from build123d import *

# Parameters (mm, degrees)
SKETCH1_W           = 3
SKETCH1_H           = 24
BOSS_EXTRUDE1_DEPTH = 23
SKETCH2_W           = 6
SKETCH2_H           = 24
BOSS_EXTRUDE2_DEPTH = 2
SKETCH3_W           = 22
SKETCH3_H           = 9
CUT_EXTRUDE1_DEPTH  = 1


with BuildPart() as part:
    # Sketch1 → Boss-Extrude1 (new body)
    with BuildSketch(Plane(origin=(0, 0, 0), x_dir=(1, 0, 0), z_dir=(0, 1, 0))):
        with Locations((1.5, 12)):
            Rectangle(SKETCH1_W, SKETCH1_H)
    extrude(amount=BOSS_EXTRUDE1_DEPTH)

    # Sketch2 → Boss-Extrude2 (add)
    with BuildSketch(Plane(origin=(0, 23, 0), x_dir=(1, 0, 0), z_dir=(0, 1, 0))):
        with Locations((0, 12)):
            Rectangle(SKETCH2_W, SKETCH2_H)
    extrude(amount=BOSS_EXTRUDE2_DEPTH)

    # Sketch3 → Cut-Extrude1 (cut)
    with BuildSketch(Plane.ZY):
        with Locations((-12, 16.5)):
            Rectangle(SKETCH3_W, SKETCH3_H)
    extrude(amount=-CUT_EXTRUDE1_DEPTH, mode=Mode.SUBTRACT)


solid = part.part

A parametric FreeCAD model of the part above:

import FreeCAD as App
import Part
import Sketcher
from FreeCAD import Vector

doc = App.newDocument("Part")
body = doc.addObject("PartDesign::Body", "Body")

# Sketch on XZ plane
sketch1 = body.newObject("Sketcher::SketchObject", "Sketch")
sketch1.AttachmentSupport = (doc.getObject("XZ_Plane"), [""])
sketch1.MapMode = "FlatFace"
sketch1.addGeometry([
    Part.LineSegment(Vector(0, -24, 0), Vector(0, 0, 0)),
    Part.LineSegment(Vector(0, 0, 0), Vector(3, 0, 0)),
    Part.LineSegment(Vector(3, 0, 0), Vector(3, -24, 0)),
    Part.LineSegment(Vector(3, -24, 0), Vector(0, -24, 0)),
], False)
sketch1.addConstraint([
    Sketcher.Constraint("Coincident", 0, 2, 1, 1),
    Sketcher.Constraint("Coincident", 1, 2, 2, 1),
    Sketcher.Constraint("Coincident", 2, 2, 3, 1),
    Sketcher.Constraint("Coincident", 3, 2, 0, 1),
    Sketcher.Constraint("Vertical", 0),
    Sketcher.Constraint("Horizontal", 1),
    Sketcher.Constraint("Vertical", 2),
    Sketcher.Constraint("Horizontal", 3),
    Sketcher.Constraint("Coincident", 0, 2, -1, 1),
    Sketcher.Constraint("DistanceX", 1, 1, 1, 2, 3.0),
    Sketcher.Constraint("DistanceY", 0, 1, 0, 2, 24.0),
])
pad1 = body.newObject("PartDesign::Pad", "Pad")
pad1.Profile = sketch1
pad1.Length = 23
pad1.Reversed = True

# Sketch on XZ plane
sketch2 = body.newObject("Sketcher::SketchObject", "Sketch001")
sketch2.AttachmentSupport = (doc.getObject("XZ_Plane"), [""])
sketch2.MapMode = "FlatFace"
sketch2.AttachmentOffset = App.Placement(Vector(0, 0, -23), App.Rotation())
sketch2.addGeometry([
    Part.LineSegment(Vector(-3, -24, 0), Vector(-3, 0, 0)),
    Part.LineSegment(Vector(-3, 0, 0), Vector(3, 0, 0)),
    Part.LineSegment(Vector(3, 0, 0), Vector(3, -24, 0)),
    Part.LineSegment(Vector(3, -24, 0), Vector(-3, -24, 0)),
], False)
sketch2.addConstraint([
    Sketcher.Constraint("Coincident", 0, 2, 1, 1),
    Sketcher.Constraint("Coincident", 1, 2, 2, 1),
    Sketcher.Constraint("Coincident", 2, 2, 3, 1),
    Sketcher.Constraint("Coincident", 3, 2, 0, 1),
    Sketcher.Constraint("Vertical", 0),
    Sketcher.Constraint("Horizontal", 1),
    Sketcher.Constraint("Vertical", 2),
    Sketcher.Constraint("Horizontal", 3),
    Sketcher.Constraint("Symmetric", 0, 2, 1, 2, -1, 1),
    Sketcher.Constraint("DistanceX", 1, 1, 1, 2, 6.0),
    Sketcher.Constraint("DistanceY", 0, 1, 0, 2, 24.0),
])
pad2 = body.newObject("PartDesign::Pad", "Pad001")
pad2.Profile = sketch2
pad2.Length = 2
pad2.Reversed = True

# Sketch on YZ plane
sketch3 = body.newObject("Sketcher::SketchObject", "Sketch002")
sketch3.AttachmentSupport = (doc.getObject("YZ_Plane"), [""])
sketch3.MapMode = "FlatFace"
sketch3.addGeometry([
    Part.LineSegment(Vector(21, -23, 0), Vector(12, -23, 0)),
    Part.LineSegment(Vector(12, -23, 0), Vector(12, -1, 0)),
    Part.LineSegment(Vector(12, -1, 0), Vector(21, -1, 0)),
    Part.LineSegment(Vector(21, -1, 0), Vector(21, -23, 0)),
], False)
sketch3.addConstraint([
    Sketcher.Constraint("Coincident", 0, 2, 1, 1),
    Sketcher.Constraint("Coincident", 1, 2, 2, 1),
    Sketcher.Constraint("Coincident", 2, 2, 3, 1),
    Sketcher.Constraint("Coincident", 3, 2, 0, 1),
    Sketcher.Constraint("Horizontal", 0),
    Sketcher.Constraint("Vertical", 1),
    Sketcher.Constraint("Horizontal", 2),
    Sketcher.Constraint("Vertical", 3),
    Sketcher.Constraint("DistanceX", 0, 2, 0, 1, 9.0),
    Sketcher.Constraint("DistanceY", 1, 1, 1, 2, 22.0),
    Sketcher.Constraint("DistanceX", -1, 1, 0, 2, 12.0),
    Sketcher.Constraint("DistanceY", 0, 2, -1, 1, 23.0),
])
pocket1 = body.newObject("PartDesign::Pocket", "Pocket")
pocket1.Profile = sketch3
pocket1.Length = 1
pocket1.Reversed = True

doc.recompute()
